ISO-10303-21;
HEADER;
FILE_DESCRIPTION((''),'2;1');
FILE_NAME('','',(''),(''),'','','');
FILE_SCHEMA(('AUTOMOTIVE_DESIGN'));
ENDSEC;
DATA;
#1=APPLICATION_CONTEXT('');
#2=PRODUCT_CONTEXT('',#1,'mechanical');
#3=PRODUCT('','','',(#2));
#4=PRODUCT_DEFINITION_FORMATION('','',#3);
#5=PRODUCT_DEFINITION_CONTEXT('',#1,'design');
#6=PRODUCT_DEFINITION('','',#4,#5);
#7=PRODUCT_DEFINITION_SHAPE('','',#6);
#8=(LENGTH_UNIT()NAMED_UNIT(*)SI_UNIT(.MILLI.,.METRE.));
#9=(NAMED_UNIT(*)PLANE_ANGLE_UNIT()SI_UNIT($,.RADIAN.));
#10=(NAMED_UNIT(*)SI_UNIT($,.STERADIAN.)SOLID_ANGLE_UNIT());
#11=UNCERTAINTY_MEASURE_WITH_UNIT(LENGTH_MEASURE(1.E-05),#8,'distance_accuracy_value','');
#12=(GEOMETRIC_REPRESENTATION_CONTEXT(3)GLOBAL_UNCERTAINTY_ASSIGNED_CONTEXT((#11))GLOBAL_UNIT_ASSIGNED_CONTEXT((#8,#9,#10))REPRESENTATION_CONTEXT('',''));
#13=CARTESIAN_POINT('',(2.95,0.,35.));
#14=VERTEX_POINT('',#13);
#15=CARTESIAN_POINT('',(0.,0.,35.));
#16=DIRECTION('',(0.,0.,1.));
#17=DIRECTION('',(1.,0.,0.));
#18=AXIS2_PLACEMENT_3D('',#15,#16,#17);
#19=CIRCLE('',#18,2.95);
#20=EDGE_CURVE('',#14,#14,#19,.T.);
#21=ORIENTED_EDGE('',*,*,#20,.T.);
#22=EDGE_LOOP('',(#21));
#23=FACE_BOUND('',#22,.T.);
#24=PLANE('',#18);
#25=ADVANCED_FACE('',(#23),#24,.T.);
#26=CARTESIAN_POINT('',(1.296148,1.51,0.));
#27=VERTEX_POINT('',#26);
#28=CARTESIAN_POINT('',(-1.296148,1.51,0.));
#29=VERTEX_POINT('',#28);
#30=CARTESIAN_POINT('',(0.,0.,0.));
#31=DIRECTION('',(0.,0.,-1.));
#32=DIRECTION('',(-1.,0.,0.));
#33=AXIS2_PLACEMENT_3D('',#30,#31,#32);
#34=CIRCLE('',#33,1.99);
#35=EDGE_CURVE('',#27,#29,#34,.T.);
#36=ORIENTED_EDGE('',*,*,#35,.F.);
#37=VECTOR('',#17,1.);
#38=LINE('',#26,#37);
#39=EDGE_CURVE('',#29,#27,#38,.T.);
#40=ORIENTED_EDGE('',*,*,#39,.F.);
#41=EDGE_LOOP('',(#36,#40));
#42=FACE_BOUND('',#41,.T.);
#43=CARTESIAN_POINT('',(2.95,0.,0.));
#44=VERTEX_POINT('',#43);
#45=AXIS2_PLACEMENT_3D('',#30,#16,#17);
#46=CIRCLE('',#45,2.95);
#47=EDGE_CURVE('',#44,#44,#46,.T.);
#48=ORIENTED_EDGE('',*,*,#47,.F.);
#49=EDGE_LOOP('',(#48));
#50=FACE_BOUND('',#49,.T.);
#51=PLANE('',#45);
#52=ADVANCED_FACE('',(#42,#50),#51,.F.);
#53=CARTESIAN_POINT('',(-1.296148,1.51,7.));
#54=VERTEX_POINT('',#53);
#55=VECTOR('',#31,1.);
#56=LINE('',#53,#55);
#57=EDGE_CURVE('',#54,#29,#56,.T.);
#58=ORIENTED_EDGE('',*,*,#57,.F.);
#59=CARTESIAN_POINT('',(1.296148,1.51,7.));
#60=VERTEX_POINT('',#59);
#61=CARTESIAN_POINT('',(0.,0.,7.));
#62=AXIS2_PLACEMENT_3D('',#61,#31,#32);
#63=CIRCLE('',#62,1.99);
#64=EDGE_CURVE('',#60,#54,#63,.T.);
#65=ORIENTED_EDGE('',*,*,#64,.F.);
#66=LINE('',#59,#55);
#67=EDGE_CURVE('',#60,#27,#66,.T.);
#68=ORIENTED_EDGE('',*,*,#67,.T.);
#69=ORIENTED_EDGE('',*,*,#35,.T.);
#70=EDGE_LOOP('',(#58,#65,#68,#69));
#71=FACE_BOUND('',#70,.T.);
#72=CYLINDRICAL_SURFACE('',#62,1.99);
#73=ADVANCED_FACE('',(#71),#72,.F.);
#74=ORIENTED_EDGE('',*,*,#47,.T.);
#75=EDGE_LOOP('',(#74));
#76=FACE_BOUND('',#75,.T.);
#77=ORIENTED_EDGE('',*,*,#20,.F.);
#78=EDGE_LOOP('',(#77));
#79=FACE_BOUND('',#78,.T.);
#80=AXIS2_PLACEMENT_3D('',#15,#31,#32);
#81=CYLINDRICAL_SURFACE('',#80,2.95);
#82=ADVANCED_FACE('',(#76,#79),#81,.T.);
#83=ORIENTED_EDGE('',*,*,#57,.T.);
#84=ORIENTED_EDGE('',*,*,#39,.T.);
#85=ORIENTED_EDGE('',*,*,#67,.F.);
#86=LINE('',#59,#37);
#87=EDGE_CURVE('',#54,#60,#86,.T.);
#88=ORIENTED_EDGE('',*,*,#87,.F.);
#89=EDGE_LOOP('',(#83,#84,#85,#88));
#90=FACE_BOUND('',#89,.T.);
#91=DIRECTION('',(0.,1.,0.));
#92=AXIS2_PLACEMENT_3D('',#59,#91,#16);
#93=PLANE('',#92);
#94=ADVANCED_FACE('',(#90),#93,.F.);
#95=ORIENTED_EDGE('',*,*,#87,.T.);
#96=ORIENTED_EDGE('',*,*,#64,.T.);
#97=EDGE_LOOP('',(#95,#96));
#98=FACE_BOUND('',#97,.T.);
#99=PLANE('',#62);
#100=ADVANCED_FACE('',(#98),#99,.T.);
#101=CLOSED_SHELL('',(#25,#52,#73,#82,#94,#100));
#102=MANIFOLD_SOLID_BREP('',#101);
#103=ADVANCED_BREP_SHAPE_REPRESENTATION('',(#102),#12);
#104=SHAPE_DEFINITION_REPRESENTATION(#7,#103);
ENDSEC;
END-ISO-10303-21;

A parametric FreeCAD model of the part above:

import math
import FreeCAD as App
import Part
import Sketcher
from FreeCAD import Vector

doc = App.newDocument("Part")
body = doc.addObject("PartDesign::Body", "Body")

# Sketch on XY plane
sketch1 = body.newObject("Sketcher::SketchObject", "Sketch")
sketch1.AttachmentSupport = (doc.getObject("XY_Plane"), [""])
sketch1.MapMode = "FlatFace"
sketch1.addGeometry(Part.Circle(Vector(0, 0, 0), Vector(0, 0, 1), 2.95), False)
sketch1.addConstraint([
    Sketcher.Constraint("Coincident", 0, 3, -1, 1),
    Sketcher.Constraint("Diameter", 0, 5.9),
])
pad1 = body.newObject("PartDesign::Pad", "Pad")
pad1.Profile = sketch1
pad1.Length = 35

# Sketch on XY plane
sketch2 = body.newObject("Sketcher::SketchObject", "Sketch001")
sketch2.AttachmentSupport = (doc.getObject("XY_Plane"), [""])
sketch2.MapMode = "FlatFace"
sketch2.addGeometry([
    Part.LineSegment(Vector(-1.296148, 1.51, 0), Vector(1.296148, 1.51, 0)),
    Part.ArcOfCircle(Part.Circle(Vector(0, 0, 0), Vector(0, 0, 1), 1.99), math.radians(130.642008), math.radians(409.357992)),
], False)
sketch2.addConstraint([
    Sketcher.Constraint("Coincident", 0, 1, 1, 1),
    Sketcher.Constraint("Coincident", 1, 2, 0, 2),
    Sketcher.Constraint("Horizontal", 0),
    Sketcher.Constraint("Coincident", 1, 3, -1, 1),
    Sketcher.Constraint("Radius", 1, 1.99),
    Sketcher.Constraint("DistanceY", -1, 1, 0, 1, 1.51),
])
pocket1 = body.newObject("PartDesign::Pocket", "Pocket")
pocket1.Profile = sketch2
pocket1.Length = 7
pocket1.Reversed = True

doc.recompute()
